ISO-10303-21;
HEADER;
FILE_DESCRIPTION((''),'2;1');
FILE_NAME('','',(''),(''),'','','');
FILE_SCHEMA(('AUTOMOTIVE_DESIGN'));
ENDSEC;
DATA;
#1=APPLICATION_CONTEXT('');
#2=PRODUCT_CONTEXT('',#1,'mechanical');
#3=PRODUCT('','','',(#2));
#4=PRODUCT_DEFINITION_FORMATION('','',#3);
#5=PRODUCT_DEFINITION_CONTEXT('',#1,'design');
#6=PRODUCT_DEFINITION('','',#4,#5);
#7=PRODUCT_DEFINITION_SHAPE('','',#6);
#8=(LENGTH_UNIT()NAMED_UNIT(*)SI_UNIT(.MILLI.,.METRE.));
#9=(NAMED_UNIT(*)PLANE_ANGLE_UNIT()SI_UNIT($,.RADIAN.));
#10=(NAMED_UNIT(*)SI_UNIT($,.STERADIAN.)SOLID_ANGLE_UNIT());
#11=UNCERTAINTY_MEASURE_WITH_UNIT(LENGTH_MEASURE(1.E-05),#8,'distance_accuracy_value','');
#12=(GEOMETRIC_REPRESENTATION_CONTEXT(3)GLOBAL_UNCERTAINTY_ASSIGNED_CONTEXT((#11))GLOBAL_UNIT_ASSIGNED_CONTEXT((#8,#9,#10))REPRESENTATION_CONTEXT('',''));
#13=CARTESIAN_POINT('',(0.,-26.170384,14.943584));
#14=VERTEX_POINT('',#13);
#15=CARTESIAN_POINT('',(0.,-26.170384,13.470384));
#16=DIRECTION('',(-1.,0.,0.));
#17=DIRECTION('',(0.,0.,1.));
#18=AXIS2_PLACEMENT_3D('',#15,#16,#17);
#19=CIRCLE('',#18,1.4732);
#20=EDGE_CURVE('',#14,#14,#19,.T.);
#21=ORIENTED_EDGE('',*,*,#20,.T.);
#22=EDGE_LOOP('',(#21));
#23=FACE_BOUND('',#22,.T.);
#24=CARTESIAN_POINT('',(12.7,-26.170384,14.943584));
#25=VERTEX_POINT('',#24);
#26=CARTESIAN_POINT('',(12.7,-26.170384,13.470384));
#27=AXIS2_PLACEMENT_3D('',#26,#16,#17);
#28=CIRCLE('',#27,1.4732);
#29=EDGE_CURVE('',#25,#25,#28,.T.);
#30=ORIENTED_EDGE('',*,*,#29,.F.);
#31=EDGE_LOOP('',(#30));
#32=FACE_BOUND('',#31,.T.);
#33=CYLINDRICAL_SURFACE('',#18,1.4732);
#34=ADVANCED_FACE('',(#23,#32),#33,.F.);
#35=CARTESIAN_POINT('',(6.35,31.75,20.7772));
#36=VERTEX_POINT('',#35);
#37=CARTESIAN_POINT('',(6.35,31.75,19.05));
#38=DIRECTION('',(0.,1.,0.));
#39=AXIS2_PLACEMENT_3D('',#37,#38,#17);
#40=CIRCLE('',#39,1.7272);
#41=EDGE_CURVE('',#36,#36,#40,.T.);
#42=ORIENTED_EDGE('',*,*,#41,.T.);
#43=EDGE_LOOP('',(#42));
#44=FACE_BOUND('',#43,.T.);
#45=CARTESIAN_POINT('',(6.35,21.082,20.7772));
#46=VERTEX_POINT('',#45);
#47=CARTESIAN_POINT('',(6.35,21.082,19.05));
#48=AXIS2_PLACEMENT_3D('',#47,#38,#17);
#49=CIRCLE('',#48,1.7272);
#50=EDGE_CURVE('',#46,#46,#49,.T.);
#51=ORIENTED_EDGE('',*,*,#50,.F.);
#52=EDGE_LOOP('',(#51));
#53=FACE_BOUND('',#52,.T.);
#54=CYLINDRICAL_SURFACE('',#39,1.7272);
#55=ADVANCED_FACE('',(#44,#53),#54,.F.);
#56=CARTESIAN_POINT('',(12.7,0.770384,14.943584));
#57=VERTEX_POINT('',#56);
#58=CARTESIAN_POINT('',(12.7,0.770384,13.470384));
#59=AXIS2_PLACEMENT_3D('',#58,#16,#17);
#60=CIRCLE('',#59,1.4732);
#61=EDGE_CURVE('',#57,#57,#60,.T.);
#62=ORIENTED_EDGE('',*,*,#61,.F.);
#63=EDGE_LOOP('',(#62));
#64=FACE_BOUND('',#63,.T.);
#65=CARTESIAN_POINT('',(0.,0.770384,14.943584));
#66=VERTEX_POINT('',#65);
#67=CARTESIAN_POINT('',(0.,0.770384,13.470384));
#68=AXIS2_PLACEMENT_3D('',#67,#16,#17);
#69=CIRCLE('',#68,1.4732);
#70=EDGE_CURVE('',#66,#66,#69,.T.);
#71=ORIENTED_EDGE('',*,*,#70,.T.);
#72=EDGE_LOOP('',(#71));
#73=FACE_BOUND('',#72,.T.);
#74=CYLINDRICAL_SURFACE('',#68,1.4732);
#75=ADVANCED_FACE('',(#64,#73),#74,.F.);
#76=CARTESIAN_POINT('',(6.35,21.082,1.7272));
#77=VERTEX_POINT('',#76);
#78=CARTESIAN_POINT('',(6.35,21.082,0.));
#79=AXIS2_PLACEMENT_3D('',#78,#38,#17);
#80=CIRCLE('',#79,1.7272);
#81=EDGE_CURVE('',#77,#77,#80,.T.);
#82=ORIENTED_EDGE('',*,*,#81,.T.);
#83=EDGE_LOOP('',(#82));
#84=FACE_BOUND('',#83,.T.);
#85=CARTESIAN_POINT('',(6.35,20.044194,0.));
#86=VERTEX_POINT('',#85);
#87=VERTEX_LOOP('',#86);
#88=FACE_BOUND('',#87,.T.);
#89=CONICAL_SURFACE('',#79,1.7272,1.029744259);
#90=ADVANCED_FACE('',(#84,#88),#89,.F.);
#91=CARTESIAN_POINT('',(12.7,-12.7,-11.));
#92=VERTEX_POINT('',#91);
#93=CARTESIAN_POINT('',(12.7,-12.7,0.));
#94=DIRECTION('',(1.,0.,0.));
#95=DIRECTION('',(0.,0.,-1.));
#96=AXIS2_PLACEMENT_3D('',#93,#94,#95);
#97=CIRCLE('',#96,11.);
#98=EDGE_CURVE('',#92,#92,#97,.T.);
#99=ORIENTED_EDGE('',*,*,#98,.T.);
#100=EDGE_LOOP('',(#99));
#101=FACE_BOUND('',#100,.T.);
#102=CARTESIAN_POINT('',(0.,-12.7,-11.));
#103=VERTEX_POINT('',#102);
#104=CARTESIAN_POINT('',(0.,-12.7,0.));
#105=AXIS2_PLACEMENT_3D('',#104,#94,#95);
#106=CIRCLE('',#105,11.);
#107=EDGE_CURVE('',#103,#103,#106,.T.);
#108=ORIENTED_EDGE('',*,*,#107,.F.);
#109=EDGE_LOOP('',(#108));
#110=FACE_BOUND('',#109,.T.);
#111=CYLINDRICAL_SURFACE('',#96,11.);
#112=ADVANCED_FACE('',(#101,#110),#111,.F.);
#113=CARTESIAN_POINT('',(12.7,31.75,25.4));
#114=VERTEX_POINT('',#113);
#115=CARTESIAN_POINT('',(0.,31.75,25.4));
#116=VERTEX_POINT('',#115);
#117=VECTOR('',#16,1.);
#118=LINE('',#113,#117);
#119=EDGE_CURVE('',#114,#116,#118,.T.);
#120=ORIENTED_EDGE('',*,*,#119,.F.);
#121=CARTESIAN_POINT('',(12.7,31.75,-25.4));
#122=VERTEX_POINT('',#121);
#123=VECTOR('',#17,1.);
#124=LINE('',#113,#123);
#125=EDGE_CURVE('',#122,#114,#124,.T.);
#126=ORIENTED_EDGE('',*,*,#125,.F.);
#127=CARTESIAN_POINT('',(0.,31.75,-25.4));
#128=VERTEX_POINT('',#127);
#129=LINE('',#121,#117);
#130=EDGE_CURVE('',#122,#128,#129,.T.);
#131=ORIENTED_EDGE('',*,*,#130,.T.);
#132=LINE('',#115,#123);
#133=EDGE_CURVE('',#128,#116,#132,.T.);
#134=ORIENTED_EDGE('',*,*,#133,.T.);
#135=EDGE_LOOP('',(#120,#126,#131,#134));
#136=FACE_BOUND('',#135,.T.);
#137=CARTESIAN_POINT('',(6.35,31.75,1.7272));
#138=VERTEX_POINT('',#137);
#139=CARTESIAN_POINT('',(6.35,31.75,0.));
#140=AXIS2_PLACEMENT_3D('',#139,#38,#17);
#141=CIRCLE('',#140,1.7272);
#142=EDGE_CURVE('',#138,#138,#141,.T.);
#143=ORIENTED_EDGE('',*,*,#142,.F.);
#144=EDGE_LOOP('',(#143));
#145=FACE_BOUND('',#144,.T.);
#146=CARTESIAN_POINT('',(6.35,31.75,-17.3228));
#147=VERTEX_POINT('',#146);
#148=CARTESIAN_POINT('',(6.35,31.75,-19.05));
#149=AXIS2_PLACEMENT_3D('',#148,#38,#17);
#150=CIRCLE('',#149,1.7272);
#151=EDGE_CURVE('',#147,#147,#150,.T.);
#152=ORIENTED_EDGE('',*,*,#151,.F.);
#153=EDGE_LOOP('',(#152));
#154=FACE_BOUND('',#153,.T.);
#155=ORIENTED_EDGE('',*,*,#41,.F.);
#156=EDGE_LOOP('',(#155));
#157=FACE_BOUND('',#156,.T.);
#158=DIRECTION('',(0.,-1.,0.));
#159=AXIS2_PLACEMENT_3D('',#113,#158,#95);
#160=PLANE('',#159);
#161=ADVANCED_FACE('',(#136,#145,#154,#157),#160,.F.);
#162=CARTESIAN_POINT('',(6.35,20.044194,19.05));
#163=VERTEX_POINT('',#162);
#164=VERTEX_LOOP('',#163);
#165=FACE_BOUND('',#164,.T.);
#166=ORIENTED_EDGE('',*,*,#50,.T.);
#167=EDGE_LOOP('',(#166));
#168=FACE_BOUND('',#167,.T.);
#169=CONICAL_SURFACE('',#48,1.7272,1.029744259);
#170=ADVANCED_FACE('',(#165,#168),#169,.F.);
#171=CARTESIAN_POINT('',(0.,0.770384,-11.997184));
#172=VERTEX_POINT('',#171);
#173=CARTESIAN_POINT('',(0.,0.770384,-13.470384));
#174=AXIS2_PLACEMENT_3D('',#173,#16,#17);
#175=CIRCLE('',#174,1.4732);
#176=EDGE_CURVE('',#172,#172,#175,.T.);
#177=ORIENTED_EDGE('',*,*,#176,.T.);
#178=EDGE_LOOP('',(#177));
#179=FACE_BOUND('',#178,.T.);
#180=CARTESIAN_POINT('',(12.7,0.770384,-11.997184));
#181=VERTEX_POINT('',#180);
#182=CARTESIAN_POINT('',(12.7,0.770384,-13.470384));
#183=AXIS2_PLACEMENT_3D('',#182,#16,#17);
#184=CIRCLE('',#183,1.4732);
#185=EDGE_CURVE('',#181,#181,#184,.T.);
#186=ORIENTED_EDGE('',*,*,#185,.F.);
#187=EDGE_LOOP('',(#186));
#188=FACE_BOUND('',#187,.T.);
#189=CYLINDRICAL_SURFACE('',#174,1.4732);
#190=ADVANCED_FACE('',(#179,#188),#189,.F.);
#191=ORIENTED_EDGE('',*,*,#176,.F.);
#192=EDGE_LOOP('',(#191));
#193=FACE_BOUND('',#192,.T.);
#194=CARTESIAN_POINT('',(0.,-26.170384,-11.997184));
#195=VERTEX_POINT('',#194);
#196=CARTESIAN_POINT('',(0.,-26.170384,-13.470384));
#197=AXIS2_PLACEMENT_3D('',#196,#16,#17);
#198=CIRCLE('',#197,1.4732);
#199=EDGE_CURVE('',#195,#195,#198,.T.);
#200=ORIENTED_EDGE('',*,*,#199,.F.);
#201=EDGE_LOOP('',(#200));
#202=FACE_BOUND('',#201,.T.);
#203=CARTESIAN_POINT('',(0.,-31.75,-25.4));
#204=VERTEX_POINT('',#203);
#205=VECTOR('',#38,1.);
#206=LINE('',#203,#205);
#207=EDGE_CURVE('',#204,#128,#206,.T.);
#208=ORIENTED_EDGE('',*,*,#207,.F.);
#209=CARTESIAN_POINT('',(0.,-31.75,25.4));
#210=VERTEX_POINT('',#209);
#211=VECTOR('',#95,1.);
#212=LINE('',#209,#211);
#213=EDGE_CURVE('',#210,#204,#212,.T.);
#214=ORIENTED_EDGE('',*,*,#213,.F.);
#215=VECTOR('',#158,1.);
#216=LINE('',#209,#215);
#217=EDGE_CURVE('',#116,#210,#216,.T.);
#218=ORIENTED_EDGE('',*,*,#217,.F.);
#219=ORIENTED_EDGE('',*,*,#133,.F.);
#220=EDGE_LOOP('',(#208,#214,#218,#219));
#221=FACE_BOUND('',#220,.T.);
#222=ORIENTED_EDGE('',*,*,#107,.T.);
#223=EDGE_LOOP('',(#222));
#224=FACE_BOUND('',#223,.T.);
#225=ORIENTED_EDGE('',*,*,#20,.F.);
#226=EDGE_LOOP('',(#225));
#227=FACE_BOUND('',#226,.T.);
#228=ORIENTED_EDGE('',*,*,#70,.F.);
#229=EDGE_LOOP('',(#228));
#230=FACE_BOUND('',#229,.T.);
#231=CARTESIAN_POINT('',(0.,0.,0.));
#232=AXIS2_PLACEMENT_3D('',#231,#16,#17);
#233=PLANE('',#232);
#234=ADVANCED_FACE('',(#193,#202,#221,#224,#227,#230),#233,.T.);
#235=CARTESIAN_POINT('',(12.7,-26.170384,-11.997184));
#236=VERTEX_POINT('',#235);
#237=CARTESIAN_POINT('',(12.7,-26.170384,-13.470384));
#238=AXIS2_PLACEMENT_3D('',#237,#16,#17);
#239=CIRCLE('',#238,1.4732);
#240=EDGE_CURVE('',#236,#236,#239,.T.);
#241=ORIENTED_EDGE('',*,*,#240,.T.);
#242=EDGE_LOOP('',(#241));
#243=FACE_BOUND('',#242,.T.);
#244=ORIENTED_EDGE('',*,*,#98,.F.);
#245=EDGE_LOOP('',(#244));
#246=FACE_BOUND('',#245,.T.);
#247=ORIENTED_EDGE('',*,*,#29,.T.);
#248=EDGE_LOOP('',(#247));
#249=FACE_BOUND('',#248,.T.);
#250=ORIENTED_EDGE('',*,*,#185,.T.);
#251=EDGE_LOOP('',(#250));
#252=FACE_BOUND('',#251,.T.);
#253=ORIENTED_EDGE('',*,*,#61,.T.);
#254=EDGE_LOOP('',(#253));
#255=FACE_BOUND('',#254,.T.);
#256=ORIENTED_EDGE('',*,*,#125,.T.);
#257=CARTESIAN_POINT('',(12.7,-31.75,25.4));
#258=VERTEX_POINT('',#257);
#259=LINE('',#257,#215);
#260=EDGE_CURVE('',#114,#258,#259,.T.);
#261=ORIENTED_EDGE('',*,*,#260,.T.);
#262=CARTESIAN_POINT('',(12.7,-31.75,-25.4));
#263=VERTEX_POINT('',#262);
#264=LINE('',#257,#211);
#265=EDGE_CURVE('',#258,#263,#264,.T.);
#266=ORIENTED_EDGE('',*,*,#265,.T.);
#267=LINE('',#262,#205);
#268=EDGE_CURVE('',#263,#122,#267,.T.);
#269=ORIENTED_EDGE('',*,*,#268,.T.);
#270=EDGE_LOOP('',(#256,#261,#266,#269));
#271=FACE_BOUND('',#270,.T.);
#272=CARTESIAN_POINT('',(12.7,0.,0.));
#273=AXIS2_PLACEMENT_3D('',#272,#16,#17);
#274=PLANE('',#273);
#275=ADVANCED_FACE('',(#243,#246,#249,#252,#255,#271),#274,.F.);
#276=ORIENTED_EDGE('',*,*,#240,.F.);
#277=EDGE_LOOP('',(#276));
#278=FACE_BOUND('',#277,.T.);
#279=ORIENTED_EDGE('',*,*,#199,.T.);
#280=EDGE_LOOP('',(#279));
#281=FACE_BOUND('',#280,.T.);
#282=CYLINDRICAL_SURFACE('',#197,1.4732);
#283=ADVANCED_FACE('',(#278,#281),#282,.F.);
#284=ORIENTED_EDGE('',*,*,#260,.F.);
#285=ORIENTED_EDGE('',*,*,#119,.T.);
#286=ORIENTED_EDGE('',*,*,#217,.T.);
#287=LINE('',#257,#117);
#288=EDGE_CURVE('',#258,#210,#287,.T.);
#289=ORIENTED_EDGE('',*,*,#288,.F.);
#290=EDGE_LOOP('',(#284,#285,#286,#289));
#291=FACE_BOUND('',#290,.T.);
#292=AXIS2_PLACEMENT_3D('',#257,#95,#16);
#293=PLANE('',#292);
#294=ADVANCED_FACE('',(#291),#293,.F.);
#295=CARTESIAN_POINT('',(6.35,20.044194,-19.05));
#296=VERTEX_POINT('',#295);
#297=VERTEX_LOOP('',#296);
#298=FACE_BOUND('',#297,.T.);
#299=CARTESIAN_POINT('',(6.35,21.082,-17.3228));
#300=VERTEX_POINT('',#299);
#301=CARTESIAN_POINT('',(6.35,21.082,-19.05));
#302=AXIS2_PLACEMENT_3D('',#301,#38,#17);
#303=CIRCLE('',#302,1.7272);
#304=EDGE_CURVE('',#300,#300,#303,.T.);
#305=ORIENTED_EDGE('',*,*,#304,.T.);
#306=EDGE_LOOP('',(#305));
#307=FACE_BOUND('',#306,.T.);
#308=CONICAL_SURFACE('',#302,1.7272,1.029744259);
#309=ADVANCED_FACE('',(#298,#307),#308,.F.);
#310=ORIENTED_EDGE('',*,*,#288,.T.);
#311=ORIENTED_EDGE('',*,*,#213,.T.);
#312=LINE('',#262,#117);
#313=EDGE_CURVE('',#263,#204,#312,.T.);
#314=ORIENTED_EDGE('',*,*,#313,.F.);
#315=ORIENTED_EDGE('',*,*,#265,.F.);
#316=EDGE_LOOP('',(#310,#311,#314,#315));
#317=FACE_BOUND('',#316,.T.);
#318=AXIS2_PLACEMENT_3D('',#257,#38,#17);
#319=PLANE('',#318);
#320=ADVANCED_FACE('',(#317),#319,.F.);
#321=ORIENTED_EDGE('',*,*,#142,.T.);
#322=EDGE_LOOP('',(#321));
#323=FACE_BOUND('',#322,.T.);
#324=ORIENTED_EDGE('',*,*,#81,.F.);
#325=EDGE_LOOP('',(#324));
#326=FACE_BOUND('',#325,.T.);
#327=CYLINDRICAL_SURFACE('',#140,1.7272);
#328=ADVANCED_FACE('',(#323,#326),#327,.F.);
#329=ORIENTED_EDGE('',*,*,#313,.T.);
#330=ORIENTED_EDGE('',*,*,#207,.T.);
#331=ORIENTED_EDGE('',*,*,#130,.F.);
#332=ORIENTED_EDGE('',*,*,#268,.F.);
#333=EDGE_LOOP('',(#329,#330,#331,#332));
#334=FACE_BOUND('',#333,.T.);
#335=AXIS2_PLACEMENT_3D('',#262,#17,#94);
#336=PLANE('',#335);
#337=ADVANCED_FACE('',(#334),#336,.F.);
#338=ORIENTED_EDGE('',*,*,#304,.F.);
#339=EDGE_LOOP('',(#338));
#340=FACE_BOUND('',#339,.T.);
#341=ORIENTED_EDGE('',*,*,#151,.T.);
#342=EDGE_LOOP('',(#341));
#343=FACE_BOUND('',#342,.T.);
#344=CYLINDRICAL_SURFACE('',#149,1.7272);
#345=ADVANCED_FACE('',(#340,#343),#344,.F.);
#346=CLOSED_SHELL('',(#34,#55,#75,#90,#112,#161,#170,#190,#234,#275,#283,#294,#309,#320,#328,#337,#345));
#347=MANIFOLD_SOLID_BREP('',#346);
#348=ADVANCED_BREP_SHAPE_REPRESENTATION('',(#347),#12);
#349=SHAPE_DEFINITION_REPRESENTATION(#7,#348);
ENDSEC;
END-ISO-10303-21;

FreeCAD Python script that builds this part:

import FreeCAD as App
import Part
import Sketcher
from FreeCAD import Vector
Q = App.Units.Quantity

doc = App.newDocument("Part")
body = doc.addObject("PartDesign::Body", "Body")

# Sketch on YZ plane
sketch1 = doc.addObject("Sketcher::SketchObject", "Sketch")
body.addObject(sketch1)
sketch1.AttachmentSupport = (doc.YZ_Plane, [""])
sketch1.MapMode = "FlatFace"
sketch1.addGeometry(Part.LineSegment(Vector(31.75, 25.4, 0), Vector(-31.75, 25.4, 0)), False)
sketch1.addGeometry(Part.LineSegment(Vector(-31.75, 25.4, 0), Vector(-31.75, -25.4, 0)), False)
sketch1.addGeometry(Part.LineSegment(Vector(-31.75, -25.4, 0), Vector(31.75, -25.4, 0)), False)
sketch1.addGeometry(Part.LineSegment(Vector(31.75, -25.4, 0), Vector(31.75, 25.4, 0)), False)
sketch1.addConstraint(Sketcher.Constraint("Coincident", 0, 2, 1, 1))
sketch1.addConstraint(Sketcher.Constraint("Coincident", 1, 2, 2, 1))
sketch1.addConstraint(Sketcher.Constraint("Coincident", 2, 2, 3, 1))
sketch1.addConstraint(Sketcher.Constraint("Coincident", 3, 2, 0, 1))
sketch1.addConstraint(Sketcher.Constraint("Horizontal", 0))
sketch1.addConstraint(Sketcher.Constraint("Vertical", 1))
sketch1.addConstraint(Sketcher.Constraint("Horizontal", 2))
sketch1.addConstraint(Sketcher.Constraint("Vertical", 3))
sketch1.addConstraint(Sketcher.Constraint("Symmetric", 0, 2, 2, 2, -1, 1))
sketch1.addConstraint(Sketcher.Constraint("DistanceY", 1, 2, 1, 1, Q("2 in")))
sketch1.addConstraint(Sketcher.Constraint("DistanceX", 0, 2, 0, 1, Q("2.5 in")))
pad1 = doc.addObject("PartDesign::Pad", "Pad")
body.addObject(pad1)
pad1.Profile = sketch1
pad1.Length = Q("0.5 in")

# Sketch on YZ plane
sketch2 = doc.addObject("Sketcher::SketchObject", "Sketch001")
body.addObject(sketch2)
sketch2.AttachmentSupport = (doc.YZ_Plane, [""])
sketch2.MapMode = "FlatFace"
sketch2.AttachmentOffset = App.Placement(Vector(0, 0, 0.5 * 25.4), App.Rotation())
sketch2.addGeometry(Part.Circle(Vector(-12.7, 0, 0), Vector(0, 0, 1), 11), False)
sketch2.addConstraint(Sketcher.Constraint("PointOnObject", 0, 3, -1))
sketch2.addConstraint(Sketcher.Constraint("DistanceX", 0, 3, -1, 1, Q("0.5 in")))
sketch2.addConstraint(Sketcher.Constraint("Diameter", 0, 22.0))
doc.recompute()
hole = doc.addObject("PartDesign::Hole", "Hole")
body.addObject(hole)
hole.Profile = sketch2
hole.ThreadType = "None"
hole.Diameter = 22
hole.DepthType = "ThroughAll"

# Sketch on XZ plane
sketch3 = doc.addObject("Sketcher::SketchObject", "Sketch002")
body.addObject(sketch3)
sketch3.AttachmentSupport = (doc.XZ_Plane, [""])
sketch3.MapMode = "FlatFace"
sketch3.AttachmentOffset = App.Placement(Vector(0, 0, -1.25 * 25.4), App.Rotation())
sketch3.addGeometry(Part.Circle(Vector(6.35, -19.05, 0), Vector(0, 0, 1), 1.7272), False)
sketch3.addGeometry(Part.Circle(Vector(6.35, 19.05, 0), Vector(0, 0, 1), 1.7272), False)
sketch3.addGeometry(Part.Circle(Vector(6.35, 0, 0), Vector(0, 0, 1), 1.7272), False)
sketch3.addConstraint(Sketcher.Constraint("Equal", 0, 1))
sketch3.addConstraint(Sketcher.Constraint("Equal", 1, 2))
sketch3.addConstraint(Sketcher.Constraint("Symmetric", 0, 3, 1, 3, -1))
sketch3.addConstraint(Sketcher.Constraint("PointOnObject", 2, 3, -1))
sketch3.addConstraint(Sketcher.Constraint("Vertical", 1, 3, 2, 3))
sketch3.addConstraint(Sketcher.Constraint("Diameter", 0, Q("0.136 in")))
sketch3.addConstraint(Sketcher.Constraint("DistanceY", 0, 3, 1, 3, Q("1.5 in")))
sketch3.addConstraint(Sketcher.Constraint("DistanceX", -1, 1, 0, 3, Q("0.25 in")))
doc.recompute()
hole2 = doc.addObject("PartDesign::Hole", "Hole001")
body.addObject(hole2)
hole2.Profile = sketch3
hole2.ThreadType = "None"
hole2.Diameter = Q("0.136 in")
hole2.DepthType = "Dimension"
hole2.Depth = Q("0.42 in")
hole2.DrillPoint = "Angled"
hole2.DrillPointAngle = 118
hole2.Reversed = True

# Sketch on YZ plane
sketch4 = doc.addObject("Sketcher::SketchObject", "Sketch003")
body.addObject(sketch4)
sketch4.AttachmentSupport = (doc.YZ_Plane, [""])
sketch4.MapMode = "FlatFace"
sketch4.addGeometry(Part.Circle(Vector(0.770384, -13.470384, 0), Vector(0, 0, 1), 1.4732), False)
sketch4.addConstraint(Sketcher.Constraint("Diameter", 0, Q("0.116 in")))
sketch4.addConstraint(Sketcher.Constraint("DistanceX", -1, 1, 0, 3, 0.770384))
sketch4.addConstraint(Sketcher.Constraint("DistanceY", 0, 3, -1, 1, 13.470384))
doc.recompute()
hole3 = doc.addObject("PartDesign::Hole", "Hole002")
body.addObject(hole3)
hole3.Profile = sketch4
hole3.ThreadType = "None"
hole3.Diameter = Q("0.116 in")
hole3.DepthType = "ThroughAll"
hole3.Reversed = True
doc.recompute()

datumline = doc.addObject("PartDesign::Line", "DatumLine")
body.addObject(datumline)
datumline.Placement = App.Placement(Vector(0, -12.7, 0), App.Rotation(Vector(0, 0, 1), Vector(1, 0, 0)))
polarpattern = doc.addObject("PartDesign::PolarPattern", "PolarPattern")
body.addObject(polarpattern)
polarpattern.Originals = [hole3]
polarpattern.Axis = (datumline, [""])
polarpattern.Angle = 360
polarpattern.Occurrences = 4
body.Tip = polarpattern

doc.recompute()
